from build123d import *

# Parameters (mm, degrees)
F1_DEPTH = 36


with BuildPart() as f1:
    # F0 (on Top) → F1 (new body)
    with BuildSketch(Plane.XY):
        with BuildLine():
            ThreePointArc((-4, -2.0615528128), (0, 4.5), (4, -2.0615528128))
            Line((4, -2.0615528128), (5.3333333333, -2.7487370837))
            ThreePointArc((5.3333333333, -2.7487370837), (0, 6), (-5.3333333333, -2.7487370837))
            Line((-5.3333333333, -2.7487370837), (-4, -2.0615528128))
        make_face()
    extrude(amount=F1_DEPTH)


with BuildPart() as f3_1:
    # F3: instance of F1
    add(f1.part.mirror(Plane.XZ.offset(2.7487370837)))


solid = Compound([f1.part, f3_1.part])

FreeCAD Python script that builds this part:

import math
import FreeCAD as App
import Part
import Sketcher

V = App.Vector
Q = App.Units.Quantity

doc = App.newDocument("Part")
params = doc.addObject("Spreadsheet::Sheet", "Params")
for row, (alias, value) in enumerate([
    ("sketch1_radius", "6 mm"),
    ("sketch1_radius2", "4.5 mm"),
    ("pad1_length", "36 mm"),
], start=1):
    params.set(f"A{row}", alias)
    params.set(f"B{row}", "=" + value)
    params.setAlias(f"B{row}", alias)

body = doc.addObject("PartDesign::Body", "Body")

# Sketch on XY plane
sketch1 = doc.addObject("Sketcher::SketchObject", "Sketch")
body.addObject(sketch1)
sketch1.AttachmentSupport = (doc.XY_Plane, [""])
sketch1.MapMode = "FlatFace"
sketch1.addGeometry([
    Part.ArcOfCircle(Part.Circle(V(0, 0, 0), V(0, 0, 1), 4.5), math.radians(-27), math.radians(207)),
    Part.LineSegment(V(4, -2.1, 0), V(5.3, -2.7, 0)),
    Part.ArcOfCircle(Part.Circle(V(0, 0, 0), V(0, 0, 1), 6), math.radians(-27), math.radians(207)),
    Part.LineSegment(V(-5.3, -2.7, 0), V(-4, -2.1, 0)),
], False)
sketch1.addConstraint([
    Sketcher.Constraint("Coincident", 0, 1, 1, 1),
    Sketcher.Constraint("Coincident", 1, 2, 2, 1),
    Sketcher.Constraint("Coincident", 2, 2, 3, 1),
    Sketcher.Constraint("Coincident", 3, 2, 0, 2),
    Sketcher.Constraint("Coincident", 0, 3, -1, 1),
    Sketcher.Constraint("Coincident", 2, 3, -1, 1),
    Sketcher.Constraint("Horizontal", 1, 2, 2, 2),
    Sketcher.Constraint("Horizontal", 0, 1, 3, 2),
    Sketcher.Constraint("Radius", 2, Q("6 mm")),
    Sketcher.Constraint("Radius", 0, Q("4.5 mm")),
    Sketcher.Constraint("DistanceX", -1, 1, 0, 1, Q("4 mm")),
    Sketcher.Constraint("DistanceX", -1, 1, 1, 2, Q("5.333333 mm")),
])
sketch1.setExpression("Constraints[8]", "Params.sketch1_radius")
sketch1.setExpression("Constraints[9]", "Params.sketch1_radius2")
pad1 = doc.addObject("PartDesign::Pad", "Pad")
body.addObject(pad1)
pad1.Profile = sketch1
pad1.setExpression("Length", "Params.pad1_length")
body2 = doc.addObject("PartDesign::Body", "Body001")
doc.recompute()

mirroring = doc.addObject("Part::Mirroring", "Mirroring")
mirroring.Source = body
mirroring.Base = V(0, -2.748737, 0)
mirroring.Normal = V(0, -1, 0)
body2.BaseFeature = mirroring
doc.recompute()
mirroring.Visibility = False

doc.recompute()
